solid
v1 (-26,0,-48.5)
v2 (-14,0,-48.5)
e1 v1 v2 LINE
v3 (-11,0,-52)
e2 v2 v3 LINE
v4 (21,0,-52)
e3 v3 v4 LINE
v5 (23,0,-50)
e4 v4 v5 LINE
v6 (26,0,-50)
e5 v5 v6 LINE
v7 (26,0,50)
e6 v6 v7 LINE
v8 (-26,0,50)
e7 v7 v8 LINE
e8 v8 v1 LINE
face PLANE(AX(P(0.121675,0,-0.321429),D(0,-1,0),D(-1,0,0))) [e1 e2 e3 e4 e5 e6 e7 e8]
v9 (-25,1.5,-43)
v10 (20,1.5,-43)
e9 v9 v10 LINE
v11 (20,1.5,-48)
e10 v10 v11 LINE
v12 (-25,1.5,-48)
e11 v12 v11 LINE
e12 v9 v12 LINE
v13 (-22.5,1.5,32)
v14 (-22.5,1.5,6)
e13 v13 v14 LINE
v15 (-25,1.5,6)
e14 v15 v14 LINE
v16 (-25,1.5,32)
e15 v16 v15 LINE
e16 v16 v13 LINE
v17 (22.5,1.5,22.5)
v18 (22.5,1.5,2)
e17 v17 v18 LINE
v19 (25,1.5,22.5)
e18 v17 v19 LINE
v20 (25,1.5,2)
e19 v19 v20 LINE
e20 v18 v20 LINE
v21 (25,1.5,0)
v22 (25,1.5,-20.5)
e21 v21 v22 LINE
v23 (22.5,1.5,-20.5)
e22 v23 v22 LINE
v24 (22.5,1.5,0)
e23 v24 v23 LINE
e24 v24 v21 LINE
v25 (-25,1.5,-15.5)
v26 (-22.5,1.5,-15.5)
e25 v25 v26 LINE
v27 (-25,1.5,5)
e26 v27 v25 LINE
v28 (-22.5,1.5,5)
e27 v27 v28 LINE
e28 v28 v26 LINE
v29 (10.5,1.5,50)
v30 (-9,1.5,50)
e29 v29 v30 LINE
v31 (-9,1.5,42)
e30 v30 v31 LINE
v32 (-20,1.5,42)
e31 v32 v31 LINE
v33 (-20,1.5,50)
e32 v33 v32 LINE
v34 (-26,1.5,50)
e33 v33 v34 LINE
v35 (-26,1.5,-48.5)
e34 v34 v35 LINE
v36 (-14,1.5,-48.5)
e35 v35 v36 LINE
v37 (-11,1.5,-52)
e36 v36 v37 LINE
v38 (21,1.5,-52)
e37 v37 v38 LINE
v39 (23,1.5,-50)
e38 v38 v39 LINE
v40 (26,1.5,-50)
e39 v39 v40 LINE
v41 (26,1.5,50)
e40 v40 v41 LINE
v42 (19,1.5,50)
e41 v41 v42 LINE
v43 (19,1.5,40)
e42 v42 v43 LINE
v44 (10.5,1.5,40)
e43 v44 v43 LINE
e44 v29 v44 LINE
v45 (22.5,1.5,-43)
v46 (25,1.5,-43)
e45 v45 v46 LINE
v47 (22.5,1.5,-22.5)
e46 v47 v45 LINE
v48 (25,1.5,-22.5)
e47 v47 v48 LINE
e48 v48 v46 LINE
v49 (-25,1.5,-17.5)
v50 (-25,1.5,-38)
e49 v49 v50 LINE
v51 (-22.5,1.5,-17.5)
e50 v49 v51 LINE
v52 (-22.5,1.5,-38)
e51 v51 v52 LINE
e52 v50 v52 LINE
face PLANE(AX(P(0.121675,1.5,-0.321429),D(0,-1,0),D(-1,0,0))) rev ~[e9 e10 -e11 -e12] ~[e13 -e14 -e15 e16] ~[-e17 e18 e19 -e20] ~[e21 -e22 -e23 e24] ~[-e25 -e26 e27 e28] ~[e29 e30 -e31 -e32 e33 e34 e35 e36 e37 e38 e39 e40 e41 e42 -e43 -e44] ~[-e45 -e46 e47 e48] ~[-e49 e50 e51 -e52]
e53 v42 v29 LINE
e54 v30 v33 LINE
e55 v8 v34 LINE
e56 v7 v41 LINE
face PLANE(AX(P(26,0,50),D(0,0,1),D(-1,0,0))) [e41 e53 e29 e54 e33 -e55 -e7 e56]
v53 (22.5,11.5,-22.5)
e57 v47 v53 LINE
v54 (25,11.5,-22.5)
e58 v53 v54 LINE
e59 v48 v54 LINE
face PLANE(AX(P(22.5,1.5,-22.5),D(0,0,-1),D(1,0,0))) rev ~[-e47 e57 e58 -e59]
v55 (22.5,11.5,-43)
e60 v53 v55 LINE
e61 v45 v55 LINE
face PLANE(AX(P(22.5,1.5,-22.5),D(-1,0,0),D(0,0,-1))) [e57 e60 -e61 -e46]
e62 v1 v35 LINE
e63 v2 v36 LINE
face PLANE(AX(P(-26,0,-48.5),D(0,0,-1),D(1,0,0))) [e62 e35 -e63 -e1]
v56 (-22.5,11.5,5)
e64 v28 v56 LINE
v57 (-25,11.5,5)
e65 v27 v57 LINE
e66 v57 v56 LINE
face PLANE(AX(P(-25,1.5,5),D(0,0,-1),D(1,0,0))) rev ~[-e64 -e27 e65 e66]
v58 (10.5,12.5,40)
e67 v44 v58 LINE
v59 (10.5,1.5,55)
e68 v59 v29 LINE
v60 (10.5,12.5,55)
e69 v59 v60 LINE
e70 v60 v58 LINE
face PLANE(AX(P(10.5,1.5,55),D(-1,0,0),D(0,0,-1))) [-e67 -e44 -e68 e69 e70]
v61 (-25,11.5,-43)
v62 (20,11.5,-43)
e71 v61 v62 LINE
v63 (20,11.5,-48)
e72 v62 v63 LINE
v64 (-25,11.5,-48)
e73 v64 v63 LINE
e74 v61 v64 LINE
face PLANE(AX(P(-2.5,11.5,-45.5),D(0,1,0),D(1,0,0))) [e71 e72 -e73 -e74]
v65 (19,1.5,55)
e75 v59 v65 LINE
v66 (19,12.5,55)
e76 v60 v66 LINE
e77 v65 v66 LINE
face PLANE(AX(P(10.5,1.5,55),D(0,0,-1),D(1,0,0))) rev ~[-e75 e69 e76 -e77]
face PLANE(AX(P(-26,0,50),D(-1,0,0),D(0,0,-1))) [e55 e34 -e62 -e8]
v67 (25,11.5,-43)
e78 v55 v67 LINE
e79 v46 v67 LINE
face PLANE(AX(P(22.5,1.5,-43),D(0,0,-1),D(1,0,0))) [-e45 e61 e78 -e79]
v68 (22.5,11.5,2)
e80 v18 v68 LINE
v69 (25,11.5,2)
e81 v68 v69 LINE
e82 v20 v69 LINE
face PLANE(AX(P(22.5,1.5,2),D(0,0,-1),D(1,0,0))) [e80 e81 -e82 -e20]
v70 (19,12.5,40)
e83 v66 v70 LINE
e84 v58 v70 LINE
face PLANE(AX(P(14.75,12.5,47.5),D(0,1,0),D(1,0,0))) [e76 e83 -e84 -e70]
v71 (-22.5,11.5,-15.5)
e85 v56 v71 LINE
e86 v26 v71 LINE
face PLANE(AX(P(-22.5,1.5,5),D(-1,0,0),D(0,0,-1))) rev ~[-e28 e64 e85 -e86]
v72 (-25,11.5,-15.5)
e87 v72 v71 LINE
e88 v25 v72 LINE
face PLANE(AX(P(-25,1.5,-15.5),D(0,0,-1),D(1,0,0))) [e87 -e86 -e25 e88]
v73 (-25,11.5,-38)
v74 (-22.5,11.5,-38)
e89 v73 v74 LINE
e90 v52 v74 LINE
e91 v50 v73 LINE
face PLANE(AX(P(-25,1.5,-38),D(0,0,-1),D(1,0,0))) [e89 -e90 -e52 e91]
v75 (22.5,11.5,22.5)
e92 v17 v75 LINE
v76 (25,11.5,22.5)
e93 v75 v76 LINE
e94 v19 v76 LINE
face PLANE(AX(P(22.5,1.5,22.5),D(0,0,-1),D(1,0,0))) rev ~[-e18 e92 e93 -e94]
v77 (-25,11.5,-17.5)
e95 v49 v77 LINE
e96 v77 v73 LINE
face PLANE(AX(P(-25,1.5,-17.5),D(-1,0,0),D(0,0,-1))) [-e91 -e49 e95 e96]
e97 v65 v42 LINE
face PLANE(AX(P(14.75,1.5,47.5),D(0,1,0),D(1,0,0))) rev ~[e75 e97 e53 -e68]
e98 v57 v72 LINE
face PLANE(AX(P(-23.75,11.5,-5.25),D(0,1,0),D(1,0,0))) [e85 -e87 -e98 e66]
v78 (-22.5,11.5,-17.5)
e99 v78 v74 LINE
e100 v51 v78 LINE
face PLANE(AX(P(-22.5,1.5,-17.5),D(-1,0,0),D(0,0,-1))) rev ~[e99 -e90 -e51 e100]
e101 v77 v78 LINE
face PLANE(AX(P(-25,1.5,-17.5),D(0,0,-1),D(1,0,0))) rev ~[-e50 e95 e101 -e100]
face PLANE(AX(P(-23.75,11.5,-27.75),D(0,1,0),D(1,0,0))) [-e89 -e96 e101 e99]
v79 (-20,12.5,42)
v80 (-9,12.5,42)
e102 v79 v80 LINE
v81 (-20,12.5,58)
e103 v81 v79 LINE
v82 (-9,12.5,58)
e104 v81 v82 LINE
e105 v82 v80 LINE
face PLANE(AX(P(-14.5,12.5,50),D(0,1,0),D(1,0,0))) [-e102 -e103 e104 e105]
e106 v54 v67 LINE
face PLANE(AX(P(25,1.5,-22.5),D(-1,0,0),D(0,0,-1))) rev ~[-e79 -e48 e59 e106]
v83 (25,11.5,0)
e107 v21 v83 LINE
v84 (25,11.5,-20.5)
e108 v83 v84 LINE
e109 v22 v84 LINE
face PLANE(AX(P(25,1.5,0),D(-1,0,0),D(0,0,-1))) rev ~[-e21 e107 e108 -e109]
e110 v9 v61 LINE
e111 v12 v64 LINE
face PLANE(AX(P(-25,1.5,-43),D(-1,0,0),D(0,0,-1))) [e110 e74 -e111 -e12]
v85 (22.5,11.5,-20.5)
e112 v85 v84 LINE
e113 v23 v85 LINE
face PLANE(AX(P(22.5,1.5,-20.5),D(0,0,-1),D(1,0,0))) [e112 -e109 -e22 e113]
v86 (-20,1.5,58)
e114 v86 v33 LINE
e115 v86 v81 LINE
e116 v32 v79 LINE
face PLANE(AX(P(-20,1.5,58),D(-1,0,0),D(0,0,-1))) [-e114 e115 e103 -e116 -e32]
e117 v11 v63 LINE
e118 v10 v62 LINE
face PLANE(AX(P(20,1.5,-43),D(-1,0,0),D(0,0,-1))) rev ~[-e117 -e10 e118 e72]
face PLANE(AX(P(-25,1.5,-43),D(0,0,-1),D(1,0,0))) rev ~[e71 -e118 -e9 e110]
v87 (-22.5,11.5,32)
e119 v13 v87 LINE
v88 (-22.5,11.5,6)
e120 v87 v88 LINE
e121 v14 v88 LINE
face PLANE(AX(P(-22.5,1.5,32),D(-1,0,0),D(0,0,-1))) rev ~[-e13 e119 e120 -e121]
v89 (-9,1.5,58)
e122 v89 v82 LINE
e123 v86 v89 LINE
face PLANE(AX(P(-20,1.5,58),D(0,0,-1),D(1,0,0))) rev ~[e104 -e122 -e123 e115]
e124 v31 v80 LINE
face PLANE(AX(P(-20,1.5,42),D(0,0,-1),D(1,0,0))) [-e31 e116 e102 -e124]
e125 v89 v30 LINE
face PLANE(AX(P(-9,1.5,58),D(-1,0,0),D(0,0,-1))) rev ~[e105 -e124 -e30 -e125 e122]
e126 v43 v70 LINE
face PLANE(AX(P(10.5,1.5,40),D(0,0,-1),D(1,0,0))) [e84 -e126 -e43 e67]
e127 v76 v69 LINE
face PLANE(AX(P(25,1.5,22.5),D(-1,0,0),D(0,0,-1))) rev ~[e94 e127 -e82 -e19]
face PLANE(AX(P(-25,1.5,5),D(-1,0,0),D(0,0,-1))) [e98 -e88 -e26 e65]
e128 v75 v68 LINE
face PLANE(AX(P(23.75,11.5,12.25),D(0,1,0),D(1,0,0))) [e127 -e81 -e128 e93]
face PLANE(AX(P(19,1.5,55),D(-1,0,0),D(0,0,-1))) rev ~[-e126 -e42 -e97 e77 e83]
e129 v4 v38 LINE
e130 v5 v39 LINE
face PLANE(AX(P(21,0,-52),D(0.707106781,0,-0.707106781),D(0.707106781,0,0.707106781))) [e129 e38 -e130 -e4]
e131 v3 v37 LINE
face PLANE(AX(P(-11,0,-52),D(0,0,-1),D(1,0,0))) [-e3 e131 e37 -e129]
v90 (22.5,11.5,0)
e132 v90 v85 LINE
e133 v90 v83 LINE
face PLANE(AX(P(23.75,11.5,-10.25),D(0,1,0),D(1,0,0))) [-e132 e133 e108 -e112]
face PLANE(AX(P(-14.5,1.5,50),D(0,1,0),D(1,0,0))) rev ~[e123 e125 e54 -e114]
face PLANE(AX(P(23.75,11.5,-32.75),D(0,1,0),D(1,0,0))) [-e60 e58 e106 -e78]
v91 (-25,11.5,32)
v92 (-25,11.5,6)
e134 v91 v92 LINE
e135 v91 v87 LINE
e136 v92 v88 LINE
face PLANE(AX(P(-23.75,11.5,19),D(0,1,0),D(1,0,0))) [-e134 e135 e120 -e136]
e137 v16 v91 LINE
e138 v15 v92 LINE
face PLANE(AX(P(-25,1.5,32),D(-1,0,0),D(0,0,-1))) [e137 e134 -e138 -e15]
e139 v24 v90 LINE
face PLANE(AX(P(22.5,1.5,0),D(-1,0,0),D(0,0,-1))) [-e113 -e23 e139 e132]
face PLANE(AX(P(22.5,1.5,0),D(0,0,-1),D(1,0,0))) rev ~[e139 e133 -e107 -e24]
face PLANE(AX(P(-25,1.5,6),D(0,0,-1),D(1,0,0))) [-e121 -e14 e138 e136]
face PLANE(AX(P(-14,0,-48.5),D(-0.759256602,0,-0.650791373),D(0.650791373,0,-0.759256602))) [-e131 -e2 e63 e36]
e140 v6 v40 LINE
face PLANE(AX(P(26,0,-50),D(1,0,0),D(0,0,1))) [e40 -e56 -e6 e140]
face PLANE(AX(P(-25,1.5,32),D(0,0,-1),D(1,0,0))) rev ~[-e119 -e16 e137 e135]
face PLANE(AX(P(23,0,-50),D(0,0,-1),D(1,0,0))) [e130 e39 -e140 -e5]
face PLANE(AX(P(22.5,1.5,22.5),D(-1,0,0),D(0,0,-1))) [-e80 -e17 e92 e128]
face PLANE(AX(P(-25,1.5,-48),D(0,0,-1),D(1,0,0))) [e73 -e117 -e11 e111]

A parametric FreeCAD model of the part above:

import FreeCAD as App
import Part
import Sketcher
from FreeCAD import Vector
Q = App.Units.Quantity

doc = App.newDocument("Part")
params = doc.addObject("Spreadsheet::Sheet", "Params")
for row, (alias, value) in enumerate([
    ("sketch1_width", "12 mm"),
    ("sketch1_width2", "52 mm"),
    ("sketch1_width3", "3 mm"),
    ("sketch1_width4", "32 mm"),
    ("sketch1_height", "100 mm"),
    ("pad1_length", "1.5 mm"),
    ("sketch2_width", "45 mm"),
    ("sketch2_height", "5 mm"),
    ("sketch2_height2", "26 mm"),
    ("sketch2_width2", "2.5 mm"),
    ("sketch2_height3", "20.5 mm"),
    ("pad2_length", "10 mm"),
    ("sketch3_height", "15 mm"),
    ("sketch3_width", "8.5 mm"),
    ("pad3_length", "11 mm"),
    ("sketch4_width", "11 mm"),
    ("sketch4_height", "16 mm"),
    ("pad4_length", "11 mm"),
], start=1):
    params.set(f"A{row}", alias)
    params.set(f"B{row}", "=" + value)
    params.setAlias(f"B{row}", alias)

body = doc.addObject("PartDesign::Body", "Body")

sketch1 = doc.addObject("Sketcher::SketchObject", "Sketch")
body.addObject(sketch1)
sketch1.AttachmentSupport = (doc.XZ_Plane, [""])
sketch1.MapMode = "FlatFace"
sketch1.addGeometry([
    Part.LineSegment(Vector(-14, -48.5, 0), Vector(-26, -48.5, 0)),
    Part.LineSegment(Vector(-26, -48.5, 0), Vector(-26, 50, 0)),
    Part.LineSegment(Vector(-26, 50, 0), Vector(26, 50, 0)),
    Part.LineSegment(Vector(26, 50, 0), Vector(26, -50, 0)),
    Part.LineSegment(Vector(26, -50, 0), Vector(23, -50, 0)),
    Part.LineSegment(Vector(23, -50, 0), Vector(21, -52, 0)),
    Part.LineSegment(Vector(21, -52, 0), Vector(-11, -52, 0)),
    Part.LineSegment(Vector(-11, -52, 0), Vector(-14, -48.5, 0)),
], False)
sketch1.addConstraint([
    Sketcher.Constraint("Coincident", 0, 2, 1, 1),
    Sketcher.Constraint("Coincident", 1, 2, 2, 1),
    Sketcher.Constraint("Coincident", 2, 2, 3, 1),
    Sketcher.Constraint("Coincident", 3, 2, 4, 1),
    Sketcher.Constraint("Coincident", 4, 2, 5, 1),
    Sketcher.Constraint("Coincident", 5, 2, 6, 1),
    Sketcher.Constraint("Coincident", 6, 2, 7, 1),
    Sketcher.Constraint("Coincident", 7, 2, 0, 1),
    Sketcher.Constraint("Horizontal", 0),
    Sketcher.Constraint("Vertical", 1),
    Sketcher.Constraint("Horizontal", 2),
    Sketcher.Constraint("Vertical", 3),
    Sketcher.Constraint("Horizontal", 4),
    Sketcher.Constraint("Horizontal", 6),
    Sketcher.Constraint("Symmetric", 1, 2, 3, 2, -1, 1),
    Sketcher.Constraint("DistanceX", 0, 2, 0, 1, 12.0),
    Sketcher.Constraint("DistanceX", 2, 1, 2, 2, 52.0),
    Sketcher.Constraint("DistanceX", 4, 2, 4, 1, 3.0),
    Sketcher.Constraint("DistanceX", 6, 2, 6, 1, 32.0),
    Sketcher.Constraint("DistanceY", 3, 2, 3, 1, 100.0),
    Sketcher.Constraint("Angle", 5, Q("-135 deg")),
    Sketcher.Constraint("DistanceY", 1, 1, 1, 2, 98.5),
    Sketcher.Constraint("DistanceX", -1, 1, 5, 2, 21.0),
])
sketch1.setExpression("Constraints[15]", "Params.sketch1_width")
sketch1.setExpression("Constraints[16]", "Params.sketch1_width2")
sketch1.setExpression("Constraints[17]", "Params.sketch1_width3")
sketch1.setExpression("Constraints[18]", "Params.sketch1_width4")
sketch1.setExpression("Constraints[19]", "Params.sketch1_height")
pad1 = doc.addObject("PartDesign::Pad", "Pad")
body.addObject(pad1)
pad1.Profile = sketch1
pad1.setExpression("Length", "Params.pad1_length")
pad1.Reversed = True

sketch2 = doc.addObject("Sketcher::SketchObject", "Sketch001")
body.addObject(sketch2)
sketch2.AttachmentSupport = (doc.XZ_Plane, [""])
sketch2.MapMode = "FlatFace"
sketch2.AttachmentOffset = App.Placement(Vector(0, 0, -1.5), App.Rotation())
sketch2.addGeometry([
    Part.LineSegment(Vector(-25, -48, 0), Vector(-25, -43, 0)),
    Part.LineSegment(Vector(-25, -43, 0), Vector(20, -43, 0)),
    Part.LineSegment(Vector(20, -43, 0), Vector(20, -48, 0)),
    Part.LineSegment(Vector(20, -48, 0), Vector(-25, -48, 0)),
    Part.LineSegment(Vector(-25, -38, 0), Vector(-25, -17.5, 0)),
    Part.LineSegment(Vector(-25, -17.5, 0), Vector(-22.5, -17.5, 0)),
    Part.LineSegment(Vector(-22.5, -17.5, 0), Vector(-22.5, -38, 0)),
    Part.LineSegment(Vector(-22.5, -38, 0), Vector(-25, -38, 0)),
    Part.LineSegment(Vector(-25, -15.5, 0), Vector(-25, 5, 0)),
    Part.LineSegment(Vector(-25, 5, 0), Vector(-22.5, 5, 0)),
    Part.LineSegment(Vector(-22.5, 5, 0), Vector(-22.5, -15.5, 0)),
    Part.LineSegment(Vector(-22.5, -15.5, 0), Vector(-25, -15.5, 0)),
    Part.LineSegment(Vector(-25, 6, 0), Vector(-25, 32, 0)),
    Part.LineSegment(Vector(-25, 32, 0), Vector(-22.5, 32, 0)),
    Part.LineSegment(Vector(-22.5, 32, 0), Vector(-22.5, 6, 0)),
    Part.LineSegment(Vector(-22.5, 6, 0), Vector(-25, 6, 0)),
    Part.LineSegment(Vector(22.5, -20.5, 0), Vector(22.5, 0, 0)),
    Part.LineSegment(Vector(22.5, 0, 0), Vector(25, 0, 0)),
    Part.LineSegment(Vector(25, 0, 0), Vector(25, -20.5, 0)),
    Part.LineSegment(Vector(25, -20.5, 0), Vector(22.5, -20.5, 0)),
    Part.LineSegment(Vector(22.5, -43, 0), Vector(22.5, -22.5, 0)),
    Part.LineSegment(Vector(22.5, -22.5, 0), Vector(25, -22.5, 0)),
    Part.LineSegment(Vector(25, -22.5, 0), Vector(25, -43, 0)),
    Part.LineSegment(Vector(25, -43, 0), Vector(22.5, -43, 0)),
    Part.LineSegment(Vector(22.5, 2, 0), Vector(22.5, 22.5, 0)),
    Part.LineSegment(Vector(22.5, 22.5, 0), Vector(25, 22.5, 0)),
    Part.LineSegment(Vector(25, 22.5, 0), Vector(25, 2, 0)),
    Part.LineSegment(Vector(25, 2, 0), Vector(22.5, 2, 0)),
], False)
sketch2.addConstraint([
    Sketcher.Constraint("Coincident", 0, 2, 1, 1),
    Sketcher.Constraint("Coincident", 1, 2, 2, 1),
    Sketcher.Constraint("Coincident", 2, 2, 3, 1),
    Sketcher.Constraint("Coincident", 3, 2, 0, 1),
    Sketcher.Constraint("Coincident", 4, 2, 5, 1),
    Sketcher.Constraint("Coincident", 5, 2, 6, 1),
    Sketcher.Constraint("Coincident", 6, 2, 7, 1),
    Sketcher.Constraint("Coincident", 7, 2, 4, 1),
    Sketcher.Constraint("Coincident", 8, 2, 9, 1),
    Sketcher.Constraint("Coincident", 9, 2, 10, 1),
    Sketcher.Constraint("Coincident", 10, 2, 11, 1),
    Sketcher.Constraint("Coincident", 11, 2, 8, 1),
    Sketcher.Constraint("Coincident", 12, 2, 13, 1),
    Sketcher.Constraint("Coincident", 13, 2, 14, 1),
    Sketcher.Constraint("Coincident", 14, 2, 15, 1),
    Sketcher.Constraint("Coincident", 15, 2, 12, 1),
    Sketcher.Constraint("Coincident", 16, 2, 17, 1),
    Sketcher.Constraint("Coincident", 17, 2, 18, 1),
    Sketcher.Constraint("Coincident", 18, 2, 19, 1),
    Sketcher.Constraint("Coincident", 19, 2, 16, 1),
    Sketcher.Constraint("Coincident", 20, 2, 21, 1),
    Sketcher.Constraint("Coincident", 21, 2, 22, 1),
    Sketcher.Constraint("Coincident", 22, 2, 23, 1),
    Sketcher.Constraint("Coincident", 23, 2, 20, 1),
    Sketcher.Constraint("Coincident", 24, 2, 25, 1),
    Sketcher.Constraint("Coincident", 25, 2, 26, 1),
    Sketcher.Constraint("Coincident", 26, 2, 27, 1),
    Sketcher.Constraint("Coincident", 27, 2, 24, 1),
    Sketcher.Constraint("Vertical", 0),
    Sketcher.Constraint("Horizontal", 1),
    Sketcher.Constraint("Vertical", 2),
    Sketcher.Constraint("Horizontal", 3),
    Sketcher.Constraint("Vertical", 4),
    Sketcher.Constraint("Horizontal", 5),
    Sketcher.Constraint("Vertical", 6),
    Sketcher.Constraint("Horizontal", 7),
    Sketcher.Constraint("Vertical", 8),
    Sketcher.Constraint("Horizontal", 9),
    Sketcher.Constraint("Vertical", 10),
    Sketcher.Constraint("Horizontal", 11),
    Sketcher.Constraint("Vertical", 12),
    Sketcher.Constraint("Horizontal", 13),
    Sketcher.Constraint("Vertical", 14),
    Sketcher.Constraint("Horizontal", 15),
    Sketcher.Constraint("Vertical", 16),
    Sketcher.Constraint("Horizontal", 17),
    Sketcher.Constraint("Vertical", 18),
    Sketcher.Constraint("Horizontal", 19),
    Sketcher.Constraint("Vertical", 20),
    Sketcher.Constraint("Horizontal", 21),
    Sketcher.Constraint("Vertical", 22),
    Sketcher.Constraint("Horizontal", 23),
    Sketcher.Constraint("Vertical", 24),
    Sketcher.Constraint("Horizontal", 25),
    Sketcher.Constraint("Vertical", 26),
    Sketcher.Constraint("Horizontal", 27),
    Sketcher.Constraint("Symmetric", 0, 2, 22, 2, -2),
    Sketcher.Constraint("Symmetric", 20, 2, 24, 2, -1),
    Sketcher.Constraint("PointOnObject", 16, 2, -1),
    Sketcher.Constraint("Vertical", 3, 2, 4, 2),
    Sketcher.Constraint("Vertical", 7, 2, 8, 2),
    Sketcher.Constraint("Vertical", 6, 2, 9, 2),
    Sketcher.Constraint("Vertical", 11, 2, 12, 2),
    Sketcher.Constraint("Vertical", 10, 2, 13, 2),
    Sketcher.Constraint("Vertical", 19, 2, 20, 2),
    Sketcher.Constraint("Vertical", 18, 2, 21, 2),
    Sketcher.Constraint("Vertical", 22, 2, 25, 2),
    Sketcher.Constraint("Equal", 15, 17),
    Sketcher.Constraint("Equal", 6, 8),
    Sketcher.Constraint("Equal", 10, 16),
    Sketcher.Constraint("Equal", 18, 20),
    Sketcher.Constraint("Equal", 22, 24),
    Sketcher.Constraint("DistanceX", 1, 1, 1, 2, 45.0),
    Sketcher.Constraint("DistanceY", 0, 1, 0, 2, 5.0),
    Sketcher.Constraint("DistanceY", 12, 1, 12, 2, 26.0),
    Sketcher.Constraint("DistanceX", 5, 1, 5, 2, 2.5),
    Sketcher.Constraint("DistanceY", 4, 1, 4, 2, 20.5),
    Sketcher.Constraint("DistanceX", 0, 2, -1, 1, 25.0),
    Sketcher.Constraint("DistanceY", 0, 2, -1, 1, 43.0),
    Sketcher.Constraint("DistanceY", 6, 2, -1, 1, 38.0),
    Sketcher.Constraint("DistanceY", -1, 1, 8, 2, 5.0),
    Sketcher.Constraint("DistanceY", -1, 1, 12, 2, 32.0),
])
sketch2.setExpression("Constraints[72]", "Params.sketch2_width")
sketch2.setExpression("Constraints[73]", "Params.sketch2_height")
sketch2.setExpression("Constraints[74]", "Params.sketch2_height2")
sketch2.setExpression("Constraints[75]", "Params.sketch2_width2")
sketch2.setExpression("Constraints[76]", "Params.sketch2_height3")
pad2 = doc.addObject("PartDesign::Pad", "Pad001")
body.addObject(pad2)
pad2.Profile = sketch2
pad2.setExpression("Length", "Params.pad2_length")
pad2.Reversed = True

sketch3 = doc.addObject("Sketcher::SketchObject", "Sketch002")
body.addObject(sketch3)
sketch3.AttachmentSupport = (doc.XZ_Plane, [""])
sketch3.MapMode = "FlatFace"
sketch3.AttachmentOffset = App.Placement(Vector(0, 0, -1.5), App.Rotation())
sketch3.addGeometry([
    Part.LineSegment(Vector(10, 40, 0), Vector(10, 55, 0)),
    Part.LineSegment(Vector(10, 55, 0), Vector(19, 55, 0)),
    Part.LineSegment(Vector(19, 55, 0), Vector(19, 40, 0)),
    Part.LineSegment(Vector(19, 40, 0), Vector(10, 40, 0)),
], False)
sketch3.addConstraint([
    Sketcher.Constraint("Coincident", 0, 2, 1, 1),
    Sketcher.Constraint("Coincident", 1, 2, 2, 1),
    Sketcher.Constraint("Coincident", 2, 2, 3, 1),
    Sketcher.Constraint("Coincident", 3, 2, 0, 1),
    Sketcher.Constraint("Vertical", 0),
    Sketcher.Constraint("Horizontal", 1),
    Sketcher.Constraint("Vertical", 2),
    Sketcher.Constraint("Horizontal", 3),
    Sketcher.Constraint("DistanceY", 0, 1, 0, 2, 15.0),
    Sketcher.Constraint("DistanceX", 1, 1, 1, 2, 8.5),
    Sketcher.Constraint("DistanceY", -1, 1, 0, 2, 55.0),
    Sketcher.Constraint("DistanceX", -1, 1, 1, 2, 19.0),
])
sketch3.setExpression("Constraints[8]", "Params.sketch3_height")
sketch3.setExpression("Constraints[9]", "Params.sketch3_width")
pad3 = doc.addObject("PartDesign::Pad", "Pad002")
body.addObject(pad3)
pad3.Profile = sketch3
pad3.setExpression("Length", "Params.pad3_length")
pad3.Reversed = True

sketch4 = doc.addObject("Sketcher::SketchObject", "Sketch003")
body.addObject(sketch4)
sketch4.AttachmentSupport = (doc.XZ_Plane, [""])
sketch4.MapMode = "FlatFace"
sketch4.AttachmentOffset = App.Placement(Vector(0, 0, -1.5), App.Rotation())
sketch4.addGeometry([
    Part.LineSegment(Vector(-20, 42, 0), Vector(-20, 58, 0)),
    Part.LineSegment(Vector(-20, 58, 0), Vector(-9, 58, 0)),
    Part.LineSegment(Vector(-9, 58, 0), Vector(-9, 42, 0)),
    Part.LineSegment(Vector(-9, 42, 0), Vector(-20, 42, 0)),
], False)
sketch4.addConstraint([
    Sketcher.Constraint("Coincident", 0, 2, 1, 1),
    Sketcher.Constraint("Coincident", 1, 2, 2, 1),
    Sketcher.Constraint("Coincident", 2, 2, 3, 1),
    Sketcher.Constraint("Coincident", 3, 2, 0, 1),
    Sketcher.Constraint("Vertical", 0),
    Sketcher.Constraint("Horizontal", 1),
    Sketcher.Constraint("Vertical", 2),
    Sketcher.Constraint("Horizontal", 3),
    Sketcher.Constraint("DistanceX", 1, 1, 1, 2, 11.0),
    Sketcher.Constraint("DistanceY", 0, 1, 0, 2, 16.0),
    Sketcher.Constraint("DistanceX", 0, 2, -1, 1, 20.0),
    Sketcher.Constraint("DistanceY", -1, 1, 0, 2, 58.0),
])
sketch4.setExpression("Constraints[8]", "Params.sketch4_width")
sketch4.setExpression("Constraints[9]", "Params.sketch4_height")
pad4 = doc.addObject("PartDesign::Pad", "Pad003")
body.addObject(pad4)
pad4.Profile = sketch4
pad4.setExpression("Length", "Params.pad4_length")
pad4.Reversed = True

doc.recompute()
